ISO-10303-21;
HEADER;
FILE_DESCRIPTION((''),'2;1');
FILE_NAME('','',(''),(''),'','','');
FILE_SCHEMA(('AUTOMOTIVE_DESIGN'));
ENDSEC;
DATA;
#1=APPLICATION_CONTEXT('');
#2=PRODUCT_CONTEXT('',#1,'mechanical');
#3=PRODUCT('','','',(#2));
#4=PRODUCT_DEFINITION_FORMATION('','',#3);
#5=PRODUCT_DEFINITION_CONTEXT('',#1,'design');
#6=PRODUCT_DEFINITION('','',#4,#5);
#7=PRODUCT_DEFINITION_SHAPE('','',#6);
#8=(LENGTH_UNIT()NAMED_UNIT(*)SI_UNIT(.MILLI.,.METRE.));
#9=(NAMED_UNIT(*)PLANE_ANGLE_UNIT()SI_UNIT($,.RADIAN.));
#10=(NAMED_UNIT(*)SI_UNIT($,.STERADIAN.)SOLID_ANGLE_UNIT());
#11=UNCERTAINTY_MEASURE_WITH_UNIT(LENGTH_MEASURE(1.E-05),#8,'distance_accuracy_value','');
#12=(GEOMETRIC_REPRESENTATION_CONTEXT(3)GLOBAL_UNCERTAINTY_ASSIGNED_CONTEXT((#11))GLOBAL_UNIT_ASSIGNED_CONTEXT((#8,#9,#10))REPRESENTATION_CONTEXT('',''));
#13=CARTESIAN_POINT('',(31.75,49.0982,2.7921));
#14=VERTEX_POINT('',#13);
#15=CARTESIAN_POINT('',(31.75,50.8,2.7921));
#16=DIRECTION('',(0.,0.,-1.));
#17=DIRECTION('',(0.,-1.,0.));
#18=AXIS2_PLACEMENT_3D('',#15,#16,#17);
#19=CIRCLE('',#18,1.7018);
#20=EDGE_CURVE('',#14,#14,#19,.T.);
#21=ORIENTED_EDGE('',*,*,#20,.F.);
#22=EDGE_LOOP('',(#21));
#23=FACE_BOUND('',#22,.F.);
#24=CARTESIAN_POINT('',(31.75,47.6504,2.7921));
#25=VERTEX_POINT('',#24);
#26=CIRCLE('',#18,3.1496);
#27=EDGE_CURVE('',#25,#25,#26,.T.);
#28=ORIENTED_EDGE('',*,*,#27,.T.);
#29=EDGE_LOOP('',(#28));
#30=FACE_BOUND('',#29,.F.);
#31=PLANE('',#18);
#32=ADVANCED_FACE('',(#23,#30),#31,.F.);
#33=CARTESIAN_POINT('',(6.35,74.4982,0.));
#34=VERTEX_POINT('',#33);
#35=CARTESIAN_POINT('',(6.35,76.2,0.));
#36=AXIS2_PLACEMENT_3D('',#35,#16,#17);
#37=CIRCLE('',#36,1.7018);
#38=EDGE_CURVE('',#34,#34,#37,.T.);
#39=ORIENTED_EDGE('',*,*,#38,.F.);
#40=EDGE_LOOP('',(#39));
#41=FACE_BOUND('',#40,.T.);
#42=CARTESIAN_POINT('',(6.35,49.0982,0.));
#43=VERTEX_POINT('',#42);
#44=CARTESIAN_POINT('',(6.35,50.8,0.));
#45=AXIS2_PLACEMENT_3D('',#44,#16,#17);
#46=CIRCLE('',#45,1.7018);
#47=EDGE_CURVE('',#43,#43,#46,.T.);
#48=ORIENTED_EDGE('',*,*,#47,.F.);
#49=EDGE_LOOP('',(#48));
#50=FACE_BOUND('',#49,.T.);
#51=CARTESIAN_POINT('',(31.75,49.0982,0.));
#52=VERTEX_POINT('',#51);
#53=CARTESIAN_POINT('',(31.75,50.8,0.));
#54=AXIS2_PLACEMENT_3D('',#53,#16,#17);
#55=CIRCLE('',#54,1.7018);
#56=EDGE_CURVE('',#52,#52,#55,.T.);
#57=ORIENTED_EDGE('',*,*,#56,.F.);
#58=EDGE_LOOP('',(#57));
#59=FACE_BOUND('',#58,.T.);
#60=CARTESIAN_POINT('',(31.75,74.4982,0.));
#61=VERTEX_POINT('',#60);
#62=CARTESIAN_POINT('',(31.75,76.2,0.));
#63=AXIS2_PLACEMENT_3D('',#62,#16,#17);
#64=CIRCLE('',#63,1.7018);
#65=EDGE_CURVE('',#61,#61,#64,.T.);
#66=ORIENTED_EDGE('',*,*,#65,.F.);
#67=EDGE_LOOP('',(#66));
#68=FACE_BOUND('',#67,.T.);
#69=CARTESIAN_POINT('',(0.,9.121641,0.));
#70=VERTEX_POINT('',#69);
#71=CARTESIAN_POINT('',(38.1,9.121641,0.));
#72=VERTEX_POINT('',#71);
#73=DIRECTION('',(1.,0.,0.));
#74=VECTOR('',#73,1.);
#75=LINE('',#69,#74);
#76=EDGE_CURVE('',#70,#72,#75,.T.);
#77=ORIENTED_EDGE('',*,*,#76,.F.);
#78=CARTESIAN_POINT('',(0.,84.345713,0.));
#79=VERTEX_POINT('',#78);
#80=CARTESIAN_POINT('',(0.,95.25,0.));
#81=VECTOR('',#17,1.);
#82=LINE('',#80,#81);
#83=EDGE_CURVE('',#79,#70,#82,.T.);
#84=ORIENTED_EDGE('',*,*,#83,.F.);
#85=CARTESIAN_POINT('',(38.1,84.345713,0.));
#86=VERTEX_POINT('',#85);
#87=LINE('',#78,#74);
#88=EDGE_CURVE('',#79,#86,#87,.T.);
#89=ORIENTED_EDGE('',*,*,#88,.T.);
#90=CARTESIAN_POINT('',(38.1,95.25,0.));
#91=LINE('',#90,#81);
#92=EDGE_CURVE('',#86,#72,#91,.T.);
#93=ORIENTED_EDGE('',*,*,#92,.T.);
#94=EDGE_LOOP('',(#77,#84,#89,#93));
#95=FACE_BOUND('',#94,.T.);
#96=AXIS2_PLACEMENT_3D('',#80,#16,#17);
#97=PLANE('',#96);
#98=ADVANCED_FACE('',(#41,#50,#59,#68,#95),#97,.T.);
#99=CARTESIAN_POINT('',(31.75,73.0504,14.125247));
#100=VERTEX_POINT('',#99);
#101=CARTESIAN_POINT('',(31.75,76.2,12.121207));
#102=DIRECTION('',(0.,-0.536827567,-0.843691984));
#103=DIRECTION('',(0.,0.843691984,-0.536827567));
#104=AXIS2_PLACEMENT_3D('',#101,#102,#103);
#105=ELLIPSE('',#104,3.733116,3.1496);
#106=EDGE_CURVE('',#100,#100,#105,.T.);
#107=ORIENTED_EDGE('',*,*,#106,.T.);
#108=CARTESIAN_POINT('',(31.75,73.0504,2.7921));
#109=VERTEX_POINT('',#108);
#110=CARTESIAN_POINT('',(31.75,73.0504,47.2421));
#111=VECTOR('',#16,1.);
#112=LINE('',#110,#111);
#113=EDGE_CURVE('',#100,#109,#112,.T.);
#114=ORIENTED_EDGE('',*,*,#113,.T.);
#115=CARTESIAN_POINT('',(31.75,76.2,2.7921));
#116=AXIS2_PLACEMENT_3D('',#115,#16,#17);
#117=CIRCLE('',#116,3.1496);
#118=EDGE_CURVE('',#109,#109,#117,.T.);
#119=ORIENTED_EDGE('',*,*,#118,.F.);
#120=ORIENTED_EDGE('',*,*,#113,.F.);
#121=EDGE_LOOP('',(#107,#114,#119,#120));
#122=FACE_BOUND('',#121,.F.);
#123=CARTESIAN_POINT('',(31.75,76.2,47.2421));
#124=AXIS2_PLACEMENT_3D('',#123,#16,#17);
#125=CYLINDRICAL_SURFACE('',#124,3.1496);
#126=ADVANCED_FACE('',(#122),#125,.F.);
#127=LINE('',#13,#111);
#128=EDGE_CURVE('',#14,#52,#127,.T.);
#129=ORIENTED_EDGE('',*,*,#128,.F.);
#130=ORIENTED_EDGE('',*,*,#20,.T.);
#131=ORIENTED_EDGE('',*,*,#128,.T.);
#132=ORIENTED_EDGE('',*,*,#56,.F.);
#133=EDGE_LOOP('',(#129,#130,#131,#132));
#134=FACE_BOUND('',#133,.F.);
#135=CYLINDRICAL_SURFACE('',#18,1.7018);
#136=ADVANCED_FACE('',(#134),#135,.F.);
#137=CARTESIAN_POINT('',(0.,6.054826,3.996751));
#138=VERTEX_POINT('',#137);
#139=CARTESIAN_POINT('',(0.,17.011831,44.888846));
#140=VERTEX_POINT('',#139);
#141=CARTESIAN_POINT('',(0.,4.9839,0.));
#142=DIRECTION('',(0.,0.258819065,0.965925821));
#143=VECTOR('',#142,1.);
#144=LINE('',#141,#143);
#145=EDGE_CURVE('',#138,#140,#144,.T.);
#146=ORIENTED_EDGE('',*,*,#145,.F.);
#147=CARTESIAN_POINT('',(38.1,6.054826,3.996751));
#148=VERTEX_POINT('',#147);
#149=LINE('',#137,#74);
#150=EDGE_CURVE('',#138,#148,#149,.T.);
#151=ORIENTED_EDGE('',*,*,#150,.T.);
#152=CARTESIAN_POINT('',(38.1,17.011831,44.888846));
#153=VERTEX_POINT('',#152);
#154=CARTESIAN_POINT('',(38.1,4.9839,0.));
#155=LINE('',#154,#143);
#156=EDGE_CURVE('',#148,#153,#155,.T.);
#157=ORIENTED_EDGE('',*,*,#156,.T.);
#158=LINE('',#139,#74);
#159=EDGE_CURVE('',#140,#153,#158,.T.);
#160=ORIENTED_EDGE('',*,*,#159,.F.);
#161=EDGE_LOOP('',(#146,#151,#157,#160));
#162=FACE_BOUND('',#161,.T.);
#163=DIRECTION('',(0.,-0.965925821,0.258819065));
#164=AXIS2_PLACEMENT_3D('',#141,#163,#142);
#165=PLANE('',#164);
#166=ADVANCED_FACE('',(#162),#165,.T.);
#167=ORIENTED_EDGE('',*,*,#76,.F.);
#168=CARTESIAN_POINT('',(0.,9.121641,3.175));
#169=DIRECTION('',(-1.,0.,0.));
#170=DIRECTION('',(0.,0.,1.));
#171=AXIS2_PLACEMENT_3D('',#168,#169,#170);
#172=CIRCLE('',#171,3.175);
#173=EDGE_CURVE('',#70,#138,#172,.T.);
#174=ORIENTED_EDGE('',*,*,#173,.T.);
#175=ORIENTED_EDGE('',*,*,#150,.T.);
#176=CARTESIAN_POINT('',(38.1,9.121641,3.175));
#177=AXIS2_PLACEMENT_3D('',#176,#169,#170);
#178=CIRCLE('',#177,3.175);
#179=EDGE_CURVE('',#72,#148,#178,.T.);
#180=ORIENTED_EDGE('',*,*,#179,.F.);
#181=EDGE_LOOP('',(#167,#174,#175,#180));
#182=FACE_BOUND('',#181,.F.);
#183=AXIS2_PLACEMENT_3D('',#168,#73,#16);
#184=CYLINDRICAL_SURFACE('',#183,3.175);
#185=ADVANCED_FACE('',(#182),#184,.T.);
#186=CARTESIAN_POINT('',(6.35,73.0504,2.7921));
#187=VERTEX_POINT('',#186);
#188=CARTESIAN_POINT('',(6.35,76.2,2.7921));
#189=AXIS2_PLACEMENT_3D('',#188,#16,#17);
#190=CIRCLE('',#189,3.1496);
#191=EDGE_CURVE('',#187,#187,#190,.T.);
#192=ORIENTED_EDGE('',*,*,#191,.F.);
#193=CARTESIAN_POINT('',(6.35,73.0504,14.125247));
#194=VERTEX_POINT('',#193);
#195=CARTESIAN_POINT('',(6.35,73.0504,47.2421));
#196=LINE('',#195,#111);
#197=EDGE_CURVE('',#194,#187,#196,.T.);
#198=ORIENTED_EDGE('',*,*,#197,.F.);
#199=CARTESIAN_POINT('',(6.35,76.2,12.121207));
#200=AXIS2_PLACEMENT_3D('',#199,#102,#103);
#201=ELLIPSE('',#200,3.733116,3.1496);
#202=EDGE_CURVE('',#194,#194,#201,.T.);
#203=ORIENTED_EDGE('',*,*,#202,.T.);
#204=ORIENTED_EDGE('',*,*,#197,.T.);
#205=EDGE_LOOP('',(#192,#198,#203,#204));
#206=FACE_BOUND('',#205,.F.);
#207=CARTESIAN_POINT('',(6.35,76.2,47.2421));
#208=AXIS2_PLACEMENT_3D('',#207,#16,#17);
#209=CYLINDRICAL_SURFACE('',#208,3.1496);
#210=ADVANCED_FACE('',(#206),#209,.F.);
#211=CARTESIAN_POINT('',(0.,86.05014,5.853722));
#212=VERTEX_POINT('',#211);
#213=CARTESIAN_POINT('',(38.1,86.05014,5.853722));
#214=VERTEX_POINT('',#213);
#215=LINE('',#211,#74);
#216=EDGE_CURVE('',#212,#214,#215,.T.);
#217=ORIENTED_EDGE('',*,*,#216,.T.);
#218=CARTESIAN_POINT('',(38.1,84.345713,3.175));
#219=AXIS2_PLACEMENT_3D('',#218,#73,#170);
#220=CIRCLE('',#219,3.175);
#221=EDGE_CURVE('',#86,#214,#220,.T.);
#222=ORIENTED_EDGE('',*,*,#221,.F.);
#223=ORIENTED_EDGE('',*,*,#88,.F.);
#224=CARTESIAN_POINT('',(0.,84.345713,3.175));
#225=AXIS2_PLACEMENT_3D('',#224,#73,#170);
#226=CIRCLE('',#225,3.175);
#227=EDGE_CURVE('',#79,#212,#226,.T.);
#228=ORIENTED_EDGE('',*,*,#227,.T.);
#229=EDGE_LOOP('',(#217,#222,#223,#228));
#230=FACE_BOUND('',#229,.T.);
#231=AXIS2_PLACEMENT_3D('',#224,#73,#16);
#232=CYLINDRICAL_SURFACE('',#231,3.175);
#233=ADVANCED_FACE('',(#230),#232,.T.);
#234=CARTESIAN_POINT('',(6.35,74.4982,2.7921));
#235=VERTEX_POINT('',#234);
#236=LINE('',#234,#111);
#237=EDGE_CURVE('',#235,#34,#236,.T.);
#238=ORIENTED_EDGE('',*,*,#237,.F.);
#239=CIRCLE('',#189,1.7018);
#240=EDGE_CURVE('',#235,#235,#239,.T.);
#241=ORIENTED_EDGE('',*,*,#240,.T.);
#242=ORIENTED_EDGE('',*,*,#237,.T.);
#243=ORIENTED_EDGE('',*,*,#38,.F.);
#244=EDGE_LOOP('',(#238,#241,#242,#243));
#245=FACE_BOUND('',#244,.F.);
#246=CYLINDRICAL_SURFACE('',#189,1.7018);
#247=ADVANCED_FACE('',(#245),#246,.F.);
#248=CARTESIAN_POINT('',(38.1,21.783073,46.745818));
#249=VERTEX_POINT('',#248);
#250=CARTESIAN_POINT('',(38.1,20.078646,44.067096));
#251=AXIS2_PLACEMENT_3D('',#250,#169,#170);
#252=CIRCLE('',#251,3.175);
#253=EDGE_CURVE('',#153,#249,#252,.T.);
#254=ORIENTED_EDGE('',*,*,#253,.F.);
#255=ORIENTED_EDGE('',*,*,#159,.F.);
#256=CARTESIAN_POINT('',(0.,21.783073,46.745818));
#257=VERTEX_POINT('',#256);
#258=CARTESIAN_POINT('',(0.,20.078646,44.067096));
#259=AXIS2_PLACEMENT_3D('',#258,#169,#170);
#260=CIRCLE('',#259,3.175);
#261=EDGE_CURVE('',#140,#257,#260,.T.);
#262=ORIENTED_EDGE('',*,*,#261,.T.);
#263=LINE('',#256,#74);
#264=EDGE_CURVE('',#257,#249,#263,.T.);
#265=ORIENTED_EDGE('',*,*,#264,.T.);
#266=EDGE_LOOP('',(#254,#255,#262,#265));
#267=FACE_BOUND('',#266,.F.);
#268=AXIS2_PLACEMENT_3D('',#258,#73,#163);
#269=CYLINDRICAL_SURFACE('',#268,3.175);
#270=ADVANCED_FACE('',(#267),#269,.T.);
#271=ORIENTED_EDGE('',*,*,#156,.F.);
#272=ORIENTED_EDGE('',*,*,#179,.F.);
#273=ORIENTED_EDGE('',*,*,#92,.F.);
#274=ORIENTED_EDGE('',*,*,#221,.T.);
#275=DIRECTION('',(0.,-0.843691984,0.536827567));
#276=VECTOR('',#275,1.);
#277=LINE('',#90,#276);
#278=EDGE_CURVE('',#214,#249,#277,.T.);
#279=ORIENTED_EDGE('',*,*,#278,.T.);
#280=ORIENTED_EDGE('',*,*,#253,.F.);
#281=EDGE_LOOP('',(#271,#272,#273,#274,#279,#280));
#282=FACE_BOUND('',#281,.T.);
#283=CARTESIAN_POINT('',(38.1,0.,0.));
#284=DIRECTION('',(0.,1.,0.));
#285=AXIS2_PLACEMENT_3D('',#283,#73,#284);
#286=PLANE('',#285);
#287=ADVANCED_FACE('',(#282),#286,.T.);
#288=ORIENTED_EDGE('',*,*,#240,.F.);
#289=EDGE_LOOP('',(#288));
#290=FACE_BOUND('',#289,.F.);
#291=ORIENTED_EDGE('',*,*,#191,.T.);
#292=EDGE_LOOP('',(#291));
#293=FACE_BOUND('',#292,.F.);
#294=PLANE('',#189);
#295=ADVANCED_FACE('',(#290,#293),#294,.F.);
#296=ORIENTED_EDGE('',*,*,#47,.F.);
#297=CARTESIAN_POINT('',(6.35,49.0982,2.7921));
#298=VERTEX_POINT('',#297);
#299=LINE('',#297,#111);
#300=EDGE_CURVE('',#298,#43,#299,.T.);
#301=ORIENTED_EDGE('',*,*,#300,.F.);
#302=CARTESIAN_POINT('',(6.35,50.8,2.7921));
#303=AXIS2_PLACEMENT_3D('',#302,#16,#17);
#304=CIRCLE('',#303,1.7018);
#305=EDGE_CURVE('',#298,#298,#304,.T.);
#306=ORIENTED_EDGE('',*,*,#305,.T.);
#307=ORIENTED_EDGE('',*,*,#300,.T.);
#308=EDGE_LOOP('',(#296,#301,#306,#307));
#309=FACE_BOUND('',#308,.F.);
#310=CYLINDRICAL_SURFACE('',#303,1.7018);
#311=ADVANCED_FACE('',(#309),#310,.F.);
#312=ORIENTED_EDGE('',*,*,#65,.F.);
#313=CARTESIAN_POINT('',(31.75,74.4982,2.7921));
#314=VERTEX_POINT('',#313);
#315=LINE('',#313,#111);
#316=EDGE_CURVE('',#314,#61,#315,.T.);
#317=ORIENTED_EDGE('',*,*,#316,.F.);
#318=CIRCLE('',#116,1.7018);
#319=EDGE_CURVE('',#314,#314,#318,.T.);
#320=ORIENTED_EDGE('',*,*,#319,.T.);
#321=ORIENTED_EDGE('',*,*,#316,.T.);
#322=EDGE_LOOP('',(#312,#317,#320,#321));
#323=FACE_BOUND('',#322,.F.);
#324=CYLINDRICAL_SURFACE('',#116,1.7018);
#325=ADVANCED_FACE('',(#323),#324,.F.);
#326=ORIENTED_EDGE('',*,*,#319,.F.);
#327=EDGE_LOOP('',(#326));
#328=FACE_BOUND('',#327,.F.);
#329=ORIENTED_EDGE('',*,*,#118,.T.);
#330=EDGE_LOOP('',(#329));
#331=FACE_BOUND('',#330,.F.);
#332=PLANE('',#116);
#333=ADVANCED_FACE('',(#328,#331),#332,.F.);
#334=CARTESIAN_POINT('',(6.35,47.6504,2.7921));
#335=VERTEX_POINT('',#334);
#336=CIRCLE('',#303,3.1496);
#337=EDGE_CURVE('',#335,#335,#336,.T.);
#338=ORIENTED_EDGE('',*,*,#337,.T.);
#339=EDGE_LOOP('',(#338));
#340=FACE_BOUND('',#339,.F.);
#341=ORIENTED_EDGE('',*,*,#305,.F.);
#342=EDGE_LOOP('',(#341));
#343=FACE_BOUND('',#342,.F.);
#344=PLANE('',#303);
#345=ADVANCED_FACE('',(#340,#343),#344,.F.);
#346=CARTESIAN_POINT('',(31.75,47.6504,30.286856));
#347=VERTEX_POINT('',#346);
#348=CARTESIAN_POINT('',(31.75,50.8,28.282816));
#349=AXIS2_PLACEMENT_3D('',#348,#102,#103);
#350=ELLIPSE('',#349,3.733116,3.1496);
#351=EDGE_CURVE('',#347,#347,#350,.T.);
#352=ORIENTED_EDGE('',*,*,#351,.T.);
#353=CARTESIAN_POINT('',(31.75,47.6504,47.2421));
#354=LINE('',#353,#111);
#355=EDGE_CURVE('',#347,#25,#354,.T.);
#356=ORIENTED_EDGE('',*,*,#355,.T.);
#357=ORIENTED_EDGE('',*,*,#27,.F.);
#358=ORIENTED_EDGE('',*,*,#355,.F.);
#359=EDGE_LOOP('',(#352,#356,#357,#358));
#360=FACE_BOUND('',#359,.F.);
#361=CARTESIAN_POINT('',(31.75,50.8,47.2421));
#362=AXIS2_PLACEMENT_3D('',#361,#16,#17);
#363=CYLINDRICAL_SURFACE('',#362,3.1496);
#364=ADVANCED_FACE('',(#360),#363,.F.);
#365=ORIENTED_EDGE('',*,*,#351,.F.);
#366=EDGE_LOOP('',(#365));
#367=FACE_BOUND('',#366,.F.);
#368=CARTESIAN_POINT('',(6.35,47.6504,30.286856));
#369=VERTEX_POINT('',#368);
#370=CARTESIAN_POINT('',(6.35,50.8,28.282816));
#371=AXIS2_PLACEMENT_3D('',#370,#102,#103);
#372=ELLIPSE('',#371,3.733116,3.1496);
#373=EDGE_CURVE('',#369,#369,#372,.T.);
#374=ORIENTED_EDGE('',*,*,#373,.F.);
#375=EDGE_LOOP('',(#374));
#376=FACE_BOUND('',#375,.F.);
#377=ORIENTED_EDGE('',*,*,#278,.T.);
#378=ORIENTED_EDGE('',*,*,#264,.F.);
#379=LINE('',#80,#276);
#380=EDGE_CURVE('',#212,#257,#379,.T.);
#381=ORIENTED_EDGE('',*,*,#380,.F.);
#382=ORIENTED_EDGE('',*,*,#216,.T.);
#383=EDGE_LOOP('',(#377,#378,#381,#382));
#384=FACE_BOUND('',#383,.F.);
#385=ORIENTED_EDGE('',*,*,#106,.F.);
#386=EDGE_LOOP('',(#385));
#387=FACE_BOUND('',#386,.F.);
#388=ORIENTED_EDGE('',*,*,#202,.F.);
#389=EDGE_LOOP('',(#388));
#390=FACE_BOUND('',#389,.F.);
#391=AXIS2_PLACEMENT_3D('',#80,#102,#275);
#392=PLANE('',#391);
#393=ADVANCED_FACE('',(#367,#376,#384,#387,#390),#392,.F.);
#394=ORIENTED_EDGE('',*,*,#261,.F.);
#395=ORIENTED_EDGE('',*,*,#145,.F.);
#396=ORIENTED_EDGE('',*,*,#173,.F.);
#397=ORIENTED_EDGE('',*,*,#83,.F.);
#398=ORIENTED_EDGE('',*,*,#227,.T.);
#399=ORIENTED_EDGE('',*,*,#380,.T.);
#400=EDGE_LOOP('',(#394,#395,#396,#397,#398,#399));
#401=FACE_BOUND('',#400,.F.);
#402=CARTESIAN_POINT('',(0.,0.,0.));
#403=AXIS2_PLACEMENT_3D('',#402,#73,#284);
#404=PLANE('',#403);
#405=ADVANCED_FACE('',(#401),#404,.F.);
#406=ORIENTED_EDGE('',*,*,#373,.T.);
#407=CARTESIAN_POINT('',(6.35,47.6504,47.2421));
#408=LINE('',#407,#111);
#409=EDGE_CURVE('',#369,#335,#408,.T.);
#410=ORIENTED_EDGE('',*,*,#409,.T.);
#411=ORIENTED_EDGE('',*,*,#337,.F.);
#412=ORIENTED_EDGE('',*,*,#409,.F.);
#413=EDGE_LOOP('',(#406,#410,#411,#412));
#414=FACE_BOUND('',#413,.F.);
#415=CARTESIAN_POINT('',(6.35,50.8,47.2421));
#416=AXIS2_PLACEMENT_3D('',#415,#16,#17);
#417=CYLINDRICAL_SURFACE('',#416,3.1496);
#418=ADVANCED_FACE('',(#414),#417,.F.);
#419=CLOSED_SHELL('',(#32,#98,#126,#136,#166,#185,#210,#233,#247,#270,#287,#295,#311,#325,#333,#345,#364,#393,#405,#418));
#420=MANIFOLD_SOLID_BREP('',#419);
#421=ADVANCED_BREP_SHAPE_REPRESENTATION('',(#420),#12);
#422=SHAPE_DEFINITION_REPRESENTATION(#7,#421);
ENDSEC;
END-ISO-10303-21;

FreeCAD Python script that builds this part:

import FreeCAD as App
import Part
import Sketcher
Q = App.Units.Quantity


def edges_at(feature, points):
    """Names of the edges that pass closest to the given points."""
    edges = feature.Shape.Edges
    near = lambda p: min(range(len(edges)), key=lambda i: edges[i].distToShape(Part.Vertex(*p))[0])
    return sorted({f"Edge{near(p) + 1}" for p in points})


def add_polygon(sketch, points):
    """Adds a closed chain of lines whose ends are joined by coincident constraints."""
    first, n = sketch.GeometryCount, len(points)
    for a, b in zip(points, points[1:] + points[:1]):
        sketch.addGeometry(Part.LineSegment(App.Vector(*a, 0), App.Vector(*b, 0)), False)
    for i in range(n):
        sketch.addConstraint(Sketcher.Constraint("Coincident", first + i, 2, first + (i + 1) % n, 1))

doc = App.newDocument("Part")
body = doc.addObject("PartDesign::Body", "Body")

sketch1 = body.newObject("Sketcher::SketchObject", "Sketch")
sketch1.AttachmentSupport = (doc.getObject("YZ_Plane"), [""])
sketch1.MapMode = "FlatFace"
add_polygon(sketch1, [(5, 0), (95, 0), (18, 49)])
sketch1.addConstraint([
    Sketcher.Constraint("Horizontal", 0),
    Sketcher.Constraint("PointOnObject", 0, 2, -1),
    Sketcher.Constraint("Distance", 2, Q("2 in")),
    Sketcher.Constraint("DistanceX", -1, 1, 0, 2, Q("3.75 in")),
    Sketcher.Constraint("Angle", 2, Q("-105 deg")),
    Sketcher.Constraint("DistanceX", 0, 1, 0, 2, Q("90.266 mm")),
])
pad1 = body.newObject("PartDesign::Pad", "Pad")
pad1.Profile = sketch1
pad1.Length = Q("1.5 in")
doc.recompute()

fillet = body.newObject("PartDesign::Fillet", "Fillet")
fillet.Base = (pad1, edges_at(pad1, [(19.05, 95.25, 0), (19.05, 4.984, 0), (19.05, 18.132, 49.069)]))
fillet.Radius = Q("0.125 in")

sketch2 = body.newObject("Sketcher::SketchObject", "Sketch001")
sketch2.AttachmentSupport = (doc.getObject("XY_Plane"), [""])
sketch2.MapMode = "FlatFace"
sketch2.AttachmentOffset = App.Placement(App.Vector(0, 0, 47.2421), App.Rotation())
sketch2.addGeometry([
    Part.Circle(App.Vector(6.3, 76.2, 0), App.Vector(0, 0, 1), 1.7),
    Part.Circle(App.Vector(31.8, 76.2, 0), App.Vector(0, 0, 1), 1.7),
    Part.Circle(App.Vector(6.3, 50.8, 0), App.Vector(0, 0, 1), 1.7),
    Part.Circle(App.Vector(31.8, 50.8, 0), App.Vector(0, 0, 1), 1.7),
], False)
sketch2.addConstraint([
    Sketcher.Constraint("Equal", 0, 1),
    Sketcher.Constraint("Equal", 1, 2),
    Sketcher.Constraint("Equal", 2, 3),
    Sketcher.Constraint("Horizontal", 0, 3, 1, 3),
    Sketcher.Constraint("Horizontal", 2, 3, 3, 3),
    Sketcher.Constraint("Vertical", 0, 3, 2, 3),
    Sketcher.Constraint("Vertical", 1, 3, 3, 3),
    Sketcher.Constraint("Diameter", 0, Q("0.134 in")),
    Sketcher.Constraint("DistanceY", -1, 1, 0, 3, Q("3 in")),
    Sketcher.Constraint("DistanceY", -1, 1, 2, 3, Q("2 in")),
    Sketcher.Constraint("DistanceX", 0, 3, 1, 3, Q("1 in")),
    Sketcher.Constraint("DistanceX", -1, 1, 0, 3, Q("0.25 in")),
])
doc.recompute()
hole = body.newObject("PartDesign::Hole", "Hole")
hole.Profile = sketch2
hole.ThreadType = "None"
hole.Diameter = Q("0.134 in")
hole.DepthType = "ThroughAll"
hole.HoleCutType = "Counterbore"
hole.HoleCutDiameter = Q("0.248 in")
hole.HoleCutDepth = Q("1.75 in")

doc.recompute()
